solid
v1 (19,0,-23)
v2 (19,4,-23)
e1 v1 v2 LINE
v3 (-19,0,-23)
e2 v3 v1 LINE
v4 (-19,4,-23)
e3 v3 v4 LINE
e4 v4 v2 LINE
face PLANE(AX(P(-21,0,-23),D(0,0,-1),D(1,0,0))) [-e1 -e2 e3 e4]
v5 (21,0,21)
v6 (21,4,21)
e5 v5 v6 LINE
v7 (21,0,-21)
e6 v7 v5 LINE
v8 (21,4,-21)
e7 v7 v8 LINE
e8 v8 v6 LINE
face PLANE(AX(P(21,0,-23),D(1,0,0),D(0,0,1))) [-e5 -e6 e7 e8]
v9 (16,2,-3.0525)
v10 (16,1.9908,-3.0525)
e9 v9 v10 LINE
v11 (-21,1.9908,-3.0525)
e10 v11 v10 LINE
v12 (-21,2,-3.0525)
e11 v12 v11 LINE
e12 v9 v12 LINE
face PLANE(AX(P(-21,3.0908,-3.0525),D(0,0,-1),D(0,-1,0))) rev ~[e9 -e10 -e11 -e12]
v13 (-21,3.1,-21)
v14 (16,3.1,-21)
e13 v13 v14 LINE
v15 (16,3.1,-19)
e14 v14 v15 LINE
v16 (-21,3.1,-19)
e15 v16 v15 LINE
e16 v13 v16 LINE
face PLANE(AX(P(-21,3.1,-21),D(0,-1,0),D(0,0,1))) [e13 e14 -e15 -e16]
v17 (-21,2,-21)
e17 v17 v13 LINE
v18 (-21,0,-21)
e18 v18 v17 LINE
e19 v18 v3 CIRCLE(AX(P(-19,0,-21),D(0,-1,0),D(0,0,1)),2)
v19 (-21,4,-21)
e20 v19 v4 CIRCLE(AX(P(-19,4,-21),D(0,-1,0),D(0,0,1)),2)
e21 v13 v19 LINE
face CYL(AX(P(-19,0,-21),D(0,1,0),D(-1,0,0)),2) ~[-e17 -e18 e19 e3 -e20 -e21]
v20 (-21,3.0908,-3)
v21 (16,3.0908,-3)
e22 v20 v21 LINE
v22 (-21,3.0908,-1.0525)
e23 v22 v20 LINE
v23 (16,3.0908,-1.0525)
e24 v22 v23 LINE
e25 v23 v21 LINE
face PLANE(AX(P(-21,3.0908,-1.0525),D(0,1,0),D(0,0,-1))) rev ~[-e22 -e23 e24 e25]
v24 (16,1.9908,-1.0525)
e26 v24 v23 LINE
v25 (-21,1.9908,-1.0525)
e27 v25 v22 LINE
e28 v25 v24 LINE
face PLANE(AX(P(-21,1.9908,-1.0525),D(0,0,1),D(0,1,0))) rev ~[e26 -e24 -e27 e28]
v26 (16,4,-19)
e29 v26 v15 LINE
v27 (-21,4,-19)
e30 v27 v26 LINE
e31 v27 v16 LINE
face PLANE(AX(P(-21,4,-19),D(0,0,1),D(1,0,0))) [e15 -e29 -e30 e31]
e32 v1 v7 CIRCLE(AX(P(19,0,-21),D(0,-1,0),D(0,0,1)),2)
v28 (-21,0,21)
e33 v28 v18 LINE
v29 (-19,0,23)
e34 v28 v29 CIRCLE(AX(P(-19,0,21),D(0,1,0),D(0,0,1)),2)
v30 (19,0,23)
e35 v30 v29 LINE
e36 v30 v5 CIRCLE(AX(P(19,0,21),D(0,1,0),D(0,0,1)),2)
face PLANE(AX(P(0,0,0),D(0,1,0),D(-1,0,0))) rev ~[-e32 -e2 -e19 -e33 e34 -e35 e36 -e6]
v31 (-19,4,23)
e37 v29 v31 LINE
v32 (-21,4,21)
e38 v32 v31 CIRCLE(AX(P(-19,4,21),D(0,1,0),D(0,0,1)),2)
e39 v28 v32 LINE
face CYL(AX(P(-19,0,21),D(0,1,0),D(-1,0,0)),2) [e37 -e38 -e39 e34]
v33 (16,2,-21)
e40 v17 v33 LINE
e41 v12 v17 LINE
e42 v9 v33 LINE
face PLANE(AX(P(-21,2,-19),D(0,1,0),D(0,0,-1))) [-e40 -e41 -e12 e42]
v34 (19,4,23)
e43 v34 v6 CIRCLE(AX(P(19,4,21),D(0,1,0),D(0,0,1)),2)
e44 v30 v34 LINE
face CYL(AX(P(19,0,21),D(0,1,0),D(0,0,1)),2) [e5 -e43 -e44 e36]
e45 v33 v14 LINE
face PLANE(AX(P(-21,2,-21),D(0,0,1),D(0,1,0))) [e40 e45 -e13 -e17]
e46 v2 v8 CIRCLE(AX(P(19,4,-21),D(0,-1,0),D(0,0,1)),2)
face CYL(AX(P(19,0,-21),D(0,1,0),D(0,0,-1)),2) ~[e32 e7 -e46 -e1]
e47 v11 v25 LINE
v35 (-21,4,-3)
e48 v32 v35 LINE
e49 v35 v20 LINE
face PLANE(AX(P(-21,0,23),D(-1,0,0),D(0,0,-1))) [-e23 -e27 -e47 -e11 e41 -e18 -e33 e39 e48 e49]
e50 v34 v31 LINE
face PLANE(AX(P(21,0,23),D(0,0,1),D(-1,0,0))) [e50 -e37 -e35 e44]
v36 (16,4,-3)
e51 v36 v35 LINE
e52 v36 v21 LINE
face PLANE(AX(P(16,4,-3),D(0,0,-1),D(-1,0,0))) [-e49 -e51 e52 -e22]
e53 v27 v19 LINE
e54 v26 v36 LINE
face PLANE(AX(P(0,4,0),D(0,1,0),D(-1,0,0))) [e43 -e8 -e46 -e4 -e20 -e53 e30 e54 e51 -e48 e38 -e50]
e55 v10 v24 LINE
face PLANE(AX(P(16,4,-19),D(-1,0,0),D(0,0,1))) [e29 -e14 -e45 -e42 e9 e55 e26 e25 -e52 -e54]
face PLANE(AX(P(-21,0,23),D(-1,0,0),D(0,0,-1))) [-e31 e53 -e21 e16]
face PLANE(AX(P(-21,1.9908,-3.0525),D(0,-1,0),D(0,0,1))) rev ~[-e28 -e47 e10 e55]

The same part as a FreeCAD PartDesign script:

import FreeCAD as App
import Part
import Sketcher

V = App.Vector
Q = App.Units.Quantity


def edges_at(feature, points):
    """Names of the edges that pass closest to the given points."""
    edges = feature.Shape.Edges
    near = lambda p: min(range(len(edges)), key=lambda i: edges[i].distToShape(Part.Vertex(*p))[0])
    return sorted({f"Edge{near(p) + 1}" for p in points})


def add_polygon(sketch, points):
    """Adds a closed chain of lines whose ends are joined by coincident constraints."""
    first, n = sketch.GeometryCount, len(points)
    for a, b in zip(points, points[1:] + points[:1]):
        sketch.addGeometry(Part.LineSegment(App.Vector(*a, 0), App.Vector(*b, 0)), False)
    for i in range(n):
        sketch.addConstraint(Sketcher.Constraint("Coincident", first + i, 2, first + (i + 1) % n, 1))

doc = App.newDocument("Part")
body = doc.addObject("PartDesign::Body", "Body")

sketch1 = body.newObject("Sketcher::SketchObject", "Sketch")
sketch1.AttachmentSupport = (doc.getObject("XZ_Plane"), [""])
sketch1.MapMode = "FlatFace"
add_polygon(sketch1, [(-21, 23), (21, 23), (21, -23), (-21, -23)])
sketch1.addConstraint([
    Sketcher.Constraint("Horizontal", 0),
    Sketcher.Constraint("Vertical", 1),
    Sketcher.Constraint("Horizontal", 2),
    Sketcher.Constraint("Vertical", 3),
    Sketcher.Constraint("Symmetric", 0, 2, 2, 2, -1, 1),
    Sketcher.Constraint("DistanceX", 0, 1, 0, 2, Q("42 mm")),
    Sketcher.Constraint("DistanceY", 1, 2, 1, 1, Q("46 mm")),
])
pad1 = body.newObject("PartDesign::Pad", "Pad")
pad1.Profile = sketch1
pad1.Length = 4
pad1.Reversed = True
doc.recompute()

fillet = body.newObject("PartDesign::Fillet", "Fillet")
fillet.Base = (pad1, edges_at(pad1, [(-21, 2, -23)]))
fillet.Radius = 2
doc.recompute()

fillet2 = body.newObject("PartDesign::Fillet", "Fillet001")
fillet2.Base = (fillet, edges_at(fillet, [(21, 2, -23)]))
fillet2.Radius = 2
doc.recompute()

fillet3 = body.newObject("PartDesign::Fillet", "Fillet002")
fillet3.Base = (fillet2, edges_at(fillet2, [(-21, 2, 23)]))
fillet3.Radius = 2
doc.recompute()

fillet4 = body.newObject("PartDesign::Fillet", "Fillet003")
fillet4.Base = (fillet3, edges_at(fillet3, [(21, 2, 23)]))
fillet4.Radius = 2

sketch2 = body.newObject("Sketcher::SketchObject", "Sketch001")
sketch2.AttachmentSupport = (doc.getObject("XZ_Plane"), [""])
sketch2.MapMode = "FlatFace"
sketch2.AttachmentOffset = App.Placement(V(0, 0, -4), App.Rotation())
add_polygon(sketch2, [(16, -19), (-21, -19), (-21, -3), (16, -3)])
sketch2.addConstraint([
    Sketcher.Constraint("Horizontal", 0),
    Sketcher.Constraint("Vertical", 1),
    Sketcher.Constraint("Horizontal", 2),
    Sketcher.Constraint("Vertical", 3),
    Sketcher.Constraint("DistanceY", 1, 1, 1, 2, Q("16 mm")),
    Sketcher.Constraint("DistanceX", -1, 1, 2, 2, Q("16 mm")),
    Sketcher.Constraint("DistanceX", 0, 2, 0, 1, Q("37 mm")),
    Sketcher.Constraint("DistanceY", 0, 2, -1, 1, Q("19 mm")),
])
pocket1 = body.newObject("PartDesign::Pocket", "Pocket")
pocket1.Profile = sketch2
pocket1.Length = 2
pocket1.Reversed = True

sketch3 = body.newObject("Sketcher::SketchObject", "Sketch002")
sketch3.AttachmentSupport = (doc.getObject("YZ_Plane"), [""])
sketch3.MapMode = "FlatFace"
sketch3.AttachmentOffset = App.Placement(V(0, 0, -21), App.Rotation())
add_polygon(sketch3, [(3.0908, -3.0525), (1.9908, -3.0525), (1.9908, -1.0525), (3.0908, -1.0525)])
add_polygon(sketch3, [(2, -21), (2, -19), (3.1, -19), (3.1, -21)])
sketch3.addConstraint([
    Sketcher.Constraint("Horizontal", 0),
    Sketcher.Constraint("Vertical", 1),
    Sketcher.Constraint("Horizontal", 2),
    Sketcher.Constraint("Vertical", 3),
    Sketcher.Constraint("Vertical", 4),
    Sketcher.Constraint("Horizontal", 5),
    Sketcher.Constraint("Vertical", 6),
    Sketcher.Constraint("Horizontal", 7),
    Sketcher.Constraint("Equal", 2, 5),
    Sketcher.Constraint("Equal", 3, 4),
    Sketcher.Constraint("DistanceY", 1, 1, 1, 2, Q("2 mm")),
    Sketcher.Constraint("DistanceX", 0, 2, 0, 1, Q("1.1 mm")),
    Sketcher.Constraint("DistanceX", -1, 1, 4, 2, Q("2 mm")),
    Sketcher.Constraint("DistanceY", 4, 2, -1, 1, Q("19 mm")),
    Sketcher.Constraint("DistanceX", -1, 1, 0, 2, Q("1.9908 mm")),
    Sketcher.Constraint("DistanceY", 0, 2, -1, 1, Q("3.0525 mm")),
])
pocket2 = body.newObject("PartDesign::Pocket", "Pocket001")
pocket2.Profile = sketch3
pocket2.Length = 37
pocket2.Reversed = True

doc.recompute()
